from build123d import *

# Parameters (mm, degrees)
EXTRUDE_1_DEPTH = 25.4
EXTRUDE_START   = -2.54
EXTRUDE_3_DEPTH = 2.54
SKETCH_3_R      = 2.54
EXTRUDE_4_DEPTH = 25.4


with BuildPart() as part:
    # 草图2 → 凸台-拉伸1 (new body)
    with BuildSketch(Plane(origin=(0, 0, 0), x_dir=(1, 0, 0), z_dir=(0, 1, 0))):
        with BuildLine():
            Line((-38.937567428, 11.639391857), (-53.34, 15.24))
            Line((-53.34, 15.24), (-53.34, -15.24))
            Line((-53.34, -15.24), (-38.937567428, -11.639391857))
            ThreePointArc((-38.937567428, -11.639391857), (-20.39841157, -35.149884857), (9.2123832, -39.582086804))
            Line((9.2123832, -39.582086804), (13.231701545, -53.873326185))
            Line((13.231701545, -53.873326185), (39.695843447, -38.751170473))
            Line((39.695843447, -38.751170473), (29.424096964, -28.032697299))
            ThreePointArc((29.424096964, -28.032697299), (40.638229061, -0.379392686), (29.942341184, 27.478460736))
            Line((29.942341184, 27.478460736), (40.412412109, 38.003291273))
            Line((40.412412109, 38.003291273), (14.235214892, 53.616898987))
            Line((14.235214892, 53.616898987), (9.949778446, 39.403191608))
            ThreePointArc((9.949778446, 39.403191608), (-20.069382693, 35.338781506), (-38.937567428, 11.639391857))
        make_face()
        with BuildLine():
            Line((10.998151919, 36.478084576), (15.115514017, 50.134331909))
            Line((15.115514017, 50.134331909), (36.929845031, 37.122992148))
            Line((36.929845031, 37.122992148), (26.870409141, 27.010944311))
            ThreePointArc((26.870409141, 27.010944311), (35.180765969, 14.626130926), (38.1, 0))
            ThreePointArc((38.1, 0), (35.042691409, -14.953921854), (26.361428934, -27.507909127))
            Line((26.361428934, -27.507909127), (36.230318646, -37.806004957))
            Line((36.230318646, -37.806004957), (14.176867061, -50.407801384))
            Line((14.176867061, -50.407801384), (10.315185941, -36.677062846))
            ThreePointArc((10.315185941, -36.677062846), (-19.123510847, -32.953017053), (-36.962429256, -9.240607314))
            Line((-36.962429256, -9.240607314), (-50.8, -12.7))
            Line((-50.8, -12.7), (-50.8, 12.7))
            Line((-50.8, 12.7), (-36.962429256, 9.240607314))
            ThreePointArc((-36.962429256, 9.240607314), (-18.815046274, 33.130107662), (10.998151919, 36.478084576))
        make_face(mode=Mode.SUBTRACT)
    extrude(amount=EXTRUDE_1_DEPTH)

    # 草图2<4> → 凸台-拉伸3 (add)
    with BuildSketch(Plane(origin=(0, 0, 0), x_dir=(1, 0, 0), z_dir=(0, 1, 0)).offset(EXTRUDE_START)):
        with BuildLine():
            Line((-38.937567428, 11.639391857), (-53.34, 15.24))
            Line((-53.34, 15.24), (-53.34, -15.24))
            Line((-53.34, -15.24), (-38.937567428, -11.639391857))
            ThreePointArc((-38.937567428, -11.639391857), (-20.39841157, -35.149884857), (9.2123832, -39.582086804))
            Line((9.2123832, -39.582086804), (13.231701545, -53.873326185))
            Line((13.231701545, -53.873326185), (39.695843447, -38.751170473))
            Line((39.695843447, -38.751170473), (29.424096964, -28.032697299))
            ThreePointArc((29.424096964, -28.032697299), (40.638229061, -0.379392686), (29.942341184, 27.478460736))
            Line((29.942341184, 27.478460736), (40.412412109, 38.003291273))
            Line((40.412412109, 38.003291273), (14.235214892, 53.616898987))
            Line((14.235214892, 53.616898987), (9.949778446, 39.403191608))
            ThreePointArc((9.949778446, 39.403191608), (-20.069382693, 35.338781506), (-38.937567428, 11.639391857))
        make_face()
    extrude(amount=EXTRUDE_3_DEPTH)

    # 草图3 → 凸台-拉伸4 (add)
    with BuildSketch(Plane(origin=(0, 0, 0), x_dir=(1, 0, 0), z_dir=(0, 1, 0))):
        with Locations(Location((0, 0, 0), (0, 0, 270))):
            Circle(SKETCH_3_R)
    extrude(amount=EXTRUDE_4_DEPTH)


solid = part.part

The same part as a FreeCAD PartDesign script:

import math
import FreeCAD as App
import Part
import Sketcher
from FreeCAD import Vector
Q = App.Units.Quantity

doc = App.newDocument("Part")
body = doc.addObject("PartDesign::Body", "Body")

# Sketch on XZ plane
sketch1 = doc.addObject("Sketcher::SketchObject", "Sketch")
body.addObject(sketch1)
sketch1.AttachmentSupport = (doc.XZ_Plane, [""])
sketch1.MapMode = "FlatFace"
sketch1.addGeometry(Part.LineSegment(Vector(-38.937567, -11.639392, 0), Vector(-53.34, -15.24, 0)), False)
sketch1.addGeometry(Part.LineSegment(Vector(-53.34, -15.24, 0), Vector(-53.34, 15.24, 0)), False)
sketch1.addGeometry(Part.LineSegment(Vector(-53.34, 15.24, 0), Vector(-38.937567, 11.639392, 0)), False)
sketch1.addGeometry(Part.ArcOfCircle(Part.Circle(Vector(0, 0, 0), Vector(0, 0, 1), 40.64), math.radians(76.898156), math.radians(163.357307)), False)
sketch1.addGeometry(Part.LineSegment(Vector(9.212383, 39.582087, 0), Vector(13.231702, 53.873326, 0)), False)
sketch1.addGeometry(Part.LineSegment(Vector(13.231702, 53.873326, 0), Vector(39.695843, 38.75117, 0)), False)
sketch1.addGeometry(Part.LineSegment(Vector(39.695843, 38.75117, 0), Vector(29.424097, 28.032697, 0)), False)
sketch1.addGeometry(Part.ArcOfCircle(Part.Circle(Vector(0, 0, 0), Vector(0, 0, 1), 40.64), math.radians(-42.542991), math.radians(43.612771)), False)
sketch1.addGeometry(Part.LineSegment(Vector(29.942341, -27.478461, 0), Vector(40.412412, -38.003291, 0)), False)
sketch1.addGeometry(Part.LineSegment(Vector(40.412412, -38.003291, 0), Vector(14.235215, -53.616899, 0)), False)
sketch1.addGeometry(Part.LineSegment(Vector(14.235215, -53.616899, 0), Vector(9.949778, -39.403192, 0)), False)
sketch1.addGeometry(Part.ArcOfCircle(Part.Circle(Vector(0, 0, 0), Vector(0, 0, 1), 40.64), math.radians(-163.357307), math.radians(-75.828376)), False)
sketch1.addGeometry(Part.ArcOfCircle(Part.Circle(Vector(0, 0, 0), Vector(0, 0, 1), 38.1), math.radians(-165.963757), math.radians(-73.221927)), False)
sketch1.addGeometry(Part.LineSegment(Vector(10.998152, -36.478085, 0), Vector(15.115514, -50.134332, 0)), False)
sketch1.addGeometry(Part.LineSegment(Vector(15.115514, -50.134332, 0), Vector(36.929845, -37.122992, 0)), False)
sketch1.addGeometry(Part.LineSegment(Vector(36.929845, -37.122992, 0), Vector(26.870409, -27.010944, 0)), False)
sketch1.addGeometry(Part.ArcOfCircle(Part.Circle(Vector(0, 0, 0), Vector(0, 0, 1), 38.1), math.radians(-45.14944), math.radians(0)), False)
sketch1.addGeometry(Part.ArcOfCircle(Part.Circle(Vector(0, 0, 0), Vector(0, 0, 1), 38.1), math.radians(0), math.radians(46.21922)), False)
sketch1.addGeometry(Part.LineSegment(Vector(26.361429, 27.507909, 0), Vector(36.230319, 37.806005, 0)), False)
sketch1.addGeometry(Part.LineSegment(Vector(36.230319, 37.806005, 0), Vector(14.176867, 50.407801, 0)), False)
sketch1.addGeometry(Part.LineSegment(Vector(14.176867, 50.407801, 0), Vector(10.315186, 36.677063, 0)), False)
sketch1.addGeometry(Part.ArcOfCircle(Part.Circle(Vector(0, 0, 0), Vector(0, 0, 1), 38.1), math.radians(74.291707), math.radians(165.963757)), False)
sketch1.addGeometry(Part.LineSegment(Vector(-36.962429, 9.240607, 0), Vector(-50.8, 12.7, 0)), False)
sketch1.addGeometry(Part.LineSegment(Vector(-50.8, 12.7, 0), Vector(-50.8, -12.7, 0)), False)
sketch1.addGeometry(Part.LineSegment(Vector(-50.8, -12.7, 0), Vector(-36.962429, -9.240607, 0)), False)
sketch1.addConstraint(Sketcher.Constraint("Coincident", 0, 2, 1, 1))
sketch1.addConstraint(Sketcher.Constraint("Coincident", 1, 2, 2, 1))
sketch1.addConstraint(Sketcher.Constraint("Coincident", 2, 2, 3, 2))
sketch1.addConstraint(Sketcher.Constraint("Coincident", 3, 1, 4, 1))
sketch1.addConstraint(Sketcher.Constraint("Coincident", 4, 2, 5, 1))
sketch1.addConstraint(Sketcher.Constraint("Coincident", 5, 2, 6, 1))
sketch1.addConstraint(Sketcher.Constraint("Coincident", 6, 2, 7, 2))
sketch1.addConstraint(Sketcher.Constraint("Coincident", 7, 1, 8, 1))
sketch1.addConstraint(Sketcher.Constraint("Coincident", 8, 2, 9, 1))
sketch1.addConstraint(Sketcher.Constraint("Coincident", 9, 2, 10, 1))
sketch1.addConstraint(Sketcher.Constraint("Coincident", 10, 2, 11, 2))
sketch1.addConstraint(Sketcher.Constraint("Coincident", 11, 1, 0, 1))
sketch1.addConstraint(Sketcher.Constraint("Coincident", 12, 2, 13, 1))
sketch1.addConstraint(Sketcher.Constraint("Coincident", 13, 2, 14, 1))
sketch1.addConstraint(Sketcher.Constraint("Coincident", 14, 2, 15, 1))
sketch1.addConstraint(Sketcher.Constraint("Coincident", 15, 2, 16, 1))
sketch1.addConstraint(Sketcher.Constraint("Coincident", 16, 2, 17, 1))
sketch1.addConstraint(Sketcher.Constraint("Coincident", 17, 2, 18, 1))
sketch1.addConstraint(Sketcher.Constraint("Coincident", 18, 2, 19, 1))
sketch1.addConstraint(Sketcher.Constraint("Coincident", 19, 2, 20, 1))
sketch1.addConstraint(Sketcher.Constraint("Coincident", 20, 2, 21, 1))
sketch1.addConstraint(Sketcher.Constraint("Coincident", 21, 2, 22, 1))
sketch1.addConstraint(Sketcher.Constraint("Coincident", 22, 2, 23, 1))
sketch1.addConstraint(Sketcher.Constraint("Coincident", 23, 2, 24, 1))
sketch1.addConstraint(Sketcher.Constraint("Coincident", 24, 2, 12, 1))
sketch1.addConstraint(Sketcher.Constraint("Vertical", 1))
sketch1.addConstraint(Sketcher.Constraint("Vertical", 23))
sketch1.addConstraint(Sketcher.Constraint("Coincident", 3, 3, -1, 1))
sketch1.addConstraint(Sketcher.Constraint("Coincident", 7, 3, -1, 1))
sketch1.addConstraint(Sketcher.Constraint("Coincident", 11, 3, -1, 1))
sketch1.addConstraint(Sketcher.Constraint("Coincident", 12, 3, -1, 1))
sketch1.addConstraint(Sketcher.Constraint("Coincident", 16, 3, -1, 1))
sketch1.addConstraint(Sketcher.Constraint("Coincident", 17, 3, -1, 1))
sketch1.addConstraint(Sketcher.Constraint("Coincident", 21, 3, -1, 1))
sketch1.addConstraint(Sketcher.Constraint("PointOnObject", 16, 2, -1))
sketch1.addConstraint(Sketcher.Constraint("Radius", 3, Q("1.6 in")))
sketch1.addConstraint(Sketcher.Constraint("Radius", 7, Q("1.6 in")))
sketch1.addConstraint(Sketcher.Constraint("Radius", 11, Q("1.6 in")))
sketch1.addConstraint(Sketcher.Constraint("Radius", 12, Q("1.5 in")))
sketch1.addConstraint(Sketcher.Constraint("Radius", 16, Q("1.5 in")))
sketch1.addConstraint(Sketcher.Constraint("Radius", 21, Q("1.5 in")))
sketch1.addConstraint(Sketcher.Constraint("DistanceY", 23, 2, 23, 1, Q("1 in")))
sketch1.addConstraint(Sketcher.Constraint("Distance", 14, Q("1 in")))
sketch1.addConstraint(Sketcher.Constraint("Distance", 19, Q("1 in")))
sketch1.addConstraint(Sketcher.Constraint("DistanceY", 1, 1, 1, 2, Q("1.2 in")))
sketch1.addConstraint(Sketcher.Constraint("DistanceX", 22, 2, -1, 1, Q("2 in")))
sketch1.addConstraint(Sketcher.Constraint("Distance", 5, Q("1.2 in")))
sketch1.addConstraint(Sketcher.Constraint("Distance", 9, Q("1.2 in")))
sketch1.addConstraint(Sketcher.Constraint("DistanceX", 0, 2, -1, 1, Q("2.1 in")))
sketch1.addConstraint(Sketcher.Constraint("DistanceY", 0, 2, -1, 1, Q("0.6 in")))
sketch1.addConstraint(Sketcher.Constraint("DistanceY", -1, 1, 22, 2, Q("0.5 in")))
sketch1.addConstraint(Sketcher.Constraint("DistanceY", 13, 2, 8, 2, Q("0.4776 in")))
sketch1.addConstraint(Sketcher.Constraint("DistanceX", -1, 1, 4, 2, 13.231702))
sketch1.addConstraint(Sketcher.Constraint("DistanceY", 9, 2, -1, 1, 53.616899))
sketch1.addConstraint(Sketcher.Constraint("DistanceY", -1, 1, 19, 2, 50.407801))
sketch1.addConstraint(Sketcher.Constraint("DistanceY", 10, 2, 8, 2, 1.3999))
sketch1.addConstraint(Sketcher.Constraint("DistanceX", 9, 2, 13, 2, 0.880299))
sketch1.addConstraint(Sketcher.Constraint("DistanceX", 13, 2, 8, 2, 25.296898))
sketch1.addConstraint(Sketcher.Constraint("DistanceY", 8, 2, 14, 2, 0.880299))
sketch1.addConstraint(Sketcher.Constraint("DistanceY", 11, 1, 21, 2, 20.879999))
sketch1.addConstraint(Sketcher.Constraint("DistanceY", 24, 2, 2, 2, 20.879999))
sketch1.addConstraint(Sketcher.Constraint("Distance", 13, 14.263441))
sketch1.addConstraint(Sketcher.Constraint("Distance", 18, 14.263441))
sketch1.addConstraint(Sketcher.Constraint("Distance", 20, 14.263441))
sketch1.addConstraint(Sketcher.Constraint("DistanceY", -1, 1, 2, 2, 11.639392))
sketch1.addConstraint(Sketcher.Constraint("DistanceY", -1, 1, 5, 2, 38.75117))
sketch1.addConstraint(Sketcher.Constraint("DistanceX", -1, 1, 7, 1, 29.942341))
sketch1.addConstraint(Sketcher.Constraint("DistanceY", 11, 1, -1, 1, 11.639392))
sketch1.addConstraint(Sketcher.Constraint("DistanceX", -1, 1, 12, 2, 10.998152))
sketch1.addConstraint(Sketcher.Constraint("DistanceX", -1, 1, 15, 2, 26.870409))
sketch1.addConstraint(Sketcher.Constraint("DistanceX", -1, 1, 17, 2, 26.361429))
sketch1.addConstraint(Sketcher.Constraint("DistanceX", 3, 1, 4, 2, 4.019318))
sketch1.addConstraint(Sketcher.Constraint("DistanceY", 3, 1, 4, 2, 14.291239))
sketch1.addConstraint(Sketcher.Constraint("DistanceY", 6, 2, 3, 1, 11.54939))
sketch1.addConstraint(Sketcher.Constraint("DistanceX", 20, 2, 19, 2, 3.861681))
pad1 = doc.addObject("PartDesign::Pad", "Pad")
body.addObject(pad1)
pad1.Profile = sketch1
pad1.Length = Q("1 in")
pad1.Reversed = True

# Sketch on XZ plane
sketch2 = doc.addObject("Sketcher::SketchObject", "Sketch001")
body.addObject(sketch2)
sketch2.AttachmentSupport = (doc.XZ_Plane, [""])
sketch2.MapMode = "FlatFace"
sketch2.AttachmentOffset = App.Placement(Vector(0, 0, 0.1 * 25.4), App.Rotation())
sketch2.addGeometry(Part.LineSegment(Vector(-38.937567, -11.639392, 0), Vector(-53.34, -15.24, 0)), False)
sketch2.addGeometry(Part.LineSegment(Vector(-53.34, -15.24, 0), Vector(-53.34, 15.24, 0)), False)
sketch2.addGeometry(Part.LineSegment(Vector(-53.34, 15.24, 0), Vector(-38.937567, 11.639392, 0)), False)
sketch2.addGeometry(Part.ArcOfCircle(Part.Circle(Vector(0, 0, 0), Vector(0, 0, 1), 40.64), math.radians(76.898156), math.radians(163.357307)), False)
sketch2.addGeometry(Part.LineSegment(Vector(9.212383, 39.582087, 0), Vector(13.231702, 53.873326, 0)), False)
sketch2.addGeometry(Part.LineSegment(Vector(13.231702, 53.873326, 0), Vector(39.695843, 38.75117, 0)), False)
sketch2.addGeometry(Part.LineSegment(Vector(39.695843, 38.75117, 0), Vector(29.424097, 28.032697, 0)), False)
sketch2.addGeometry(Part.ArcOfCircle(Part.Circle(Vector(0, 0, 0), Vector(0, 0, 1), 40.64), math.radians(-42.542991), math.radians(43.612771)), False)
sketch2.addGeometry(Part.LineSegment(Vector(29.942341, -27.478461, 0), Vector(40.412412, -38.003291, 0)), False)
sketch2.addGeometry(Part.LineSegment(Vector(40.412412, -38.003291, 0), Vector(14.235215, -53.616899, 0)), False)
sketch2.addGeometry(Part.LineSegment(Vector(14.235215, -53.616899, 0), Vector(9.949778, -39.403192, 0)), False)
sketch2.addGeometry(Part.ArcOfCircle(Part.Circle(Vector(0, 0, 0), Vector(0, 0, 1), 40.64), math.radians(-163.357307), math.radians(-75.828376)), False)
sketch2.addConstraint(Sketcher.Constraint("Coincident", 0, 2, 1, 1))
sketch2.addConstraint(Sketcher.Constraint("Coincident", 1, 2, 2, 1))
sketch2.addConstraint(Sketcher.Constraint("Coincident", 2, 2, 3, 2))
sketch2.addConstraint(Sketcher.Constraint("Coincident", 3, 1, 4, 1))
sketch2.addConstraint(Sketcher.Constraint("Coincident", 4, 2, 5, 1))
sketch2.addConstraint(Sketcher.Constraint("Coincident", 5, 2, 6, 1))
sketch2.addConstraint(Sketcher.Constraint("Coincident", 6, 2, 7, 2))
sketch2.addConstraint(Sketcher.Constraint("Coincident", 7, 1, 8, 1))
sketch2.addConstraint(Sketcher.Constraint("Coincident", 8, 2, 9, 1))
sketch2.addConstraint(Sketcher.Constraint("Coincident", 9, 2, 10, 1))
sketch2.addConstraint(Sketcher.Constraint("Coincident", 10, 2, 11, 2))
sketch2.addConstraint(Sketcher.Constraint("Coincident", 11, 1, 0, 1))
sketch2.addConstraint(Sketcher.Constraint("Vertical", 1))
sketch2.addConstraint(Sketcher.Constraint("Coincident", 3, 3, -1, 1))
sketch2.addConstraint(Sketcher.Constraint("Coincident", 7, 3, -1, 1))
sketch2.addConstraint(Sketcher.Constraint("Coincident", 11, 3, -1, 1))
sketch2.addConstraint(Sketcher.Constraint("Equal", 3, 7))
sketch2.addConstraint(Sketcher.Constraint("Equal", 7, 11))
sketch2.addConstraint(Sketcher.Constraint("Vertical", 2, 2, 11, 1))
sketch2.addConstraint(Sketcher.Constraint("Equal", 0, 2))
sketch2.addConstraint(Sketcher.Constraint("Equal", 2, 4))
sketch2.addConstraint(Sketcher.Constraint("Equal", 4, 6))
sketch2.addConstraint(Sketcher.Constraint("Equal", 6, 8))
sketch2.addConstraint(Sketcher.Constraint("Equal", 5, 9))
sketch2.addConstraint(Sketcher.Constraint("Equal", 8, 10))
sketch2.addConstraint(Sketcher.Constraint("Radius", 3, Q("1.6 in")))
sketch2.addConstraint(Sketcher.Constraint("DistanceY", 1, 1, 1, 2, Q("1.2 in")))
sketch2.addConstraint(Sketcher.Constraint("Distance", 5, Q("1.2 in")))
sketch2.addConstraint(Sketcher.Constraint("DistanceX", 0, 2, -1, 1, Q("2.1 in")))
sketch2.addConstraint(Sketcher.Constraint("DistanceX", -1, 1, 4, 2, 13.231702))
sketch2.addConstraint(Sketcher.Constraint("DistanceY", 9, 2, -1, 1, 53.616899))
sketch2.addConstraint(Sketcher.Constraint("DistanceY", 10, 2, 8, 2, 1.3999))
sketch2.addConstraint(Sketcher.Constraint("DistanceY", -1, 1, 2, 2, 11.639392))
sketch2.addConstraint(Sketcher.Constraint("DistanceY", -1, 1, 5, 2, 38.75117))
sketch2.addConstraint(Sketcher.Constraint("DistanceX", -1, 1, 7, 1, 29.942341))
sketch2.addConstraint(Sketcher.Constraint("DistanceX", 2, 2, 3, 1, 48.149951))
pad2 = doc.addObject("PartDesign::Pad", "Pad001")
body.addObject(pad2)
pad2.Profile = sketch2
pad2.Length = Q("0.1 in")
pad2.Reversed = True

# Sketch on XZ plane
sketch3 = doc.addObject("Sketcher::SketchObject", "Sketch002")
body.addObject(sketch3)
sketch3.AttachmentSupport = (doc.XZ_Plane, [""])
sketch3.MapMode = "FlatFace"
sketch3.addGeometry(Part.Circle(Vector(0, 0, 0), Vector(0, 0, 1), 2.5), False)
sketch3.addConstraint(Sketcher.Constraint("Coincident", 0, 3, -1, 1))
sketch3.addConstraint(Sketcher.Constraint("Diameter", 0, Q("0.2 in")))
pad3 = doc.addObject("PartDesign::Pad", "Pad002")
body.addObject(pad3)
pad3.Profile = sketch3
pad3.Length = Q("1 in")
pad3.Reversed = True

doc.recompute()
